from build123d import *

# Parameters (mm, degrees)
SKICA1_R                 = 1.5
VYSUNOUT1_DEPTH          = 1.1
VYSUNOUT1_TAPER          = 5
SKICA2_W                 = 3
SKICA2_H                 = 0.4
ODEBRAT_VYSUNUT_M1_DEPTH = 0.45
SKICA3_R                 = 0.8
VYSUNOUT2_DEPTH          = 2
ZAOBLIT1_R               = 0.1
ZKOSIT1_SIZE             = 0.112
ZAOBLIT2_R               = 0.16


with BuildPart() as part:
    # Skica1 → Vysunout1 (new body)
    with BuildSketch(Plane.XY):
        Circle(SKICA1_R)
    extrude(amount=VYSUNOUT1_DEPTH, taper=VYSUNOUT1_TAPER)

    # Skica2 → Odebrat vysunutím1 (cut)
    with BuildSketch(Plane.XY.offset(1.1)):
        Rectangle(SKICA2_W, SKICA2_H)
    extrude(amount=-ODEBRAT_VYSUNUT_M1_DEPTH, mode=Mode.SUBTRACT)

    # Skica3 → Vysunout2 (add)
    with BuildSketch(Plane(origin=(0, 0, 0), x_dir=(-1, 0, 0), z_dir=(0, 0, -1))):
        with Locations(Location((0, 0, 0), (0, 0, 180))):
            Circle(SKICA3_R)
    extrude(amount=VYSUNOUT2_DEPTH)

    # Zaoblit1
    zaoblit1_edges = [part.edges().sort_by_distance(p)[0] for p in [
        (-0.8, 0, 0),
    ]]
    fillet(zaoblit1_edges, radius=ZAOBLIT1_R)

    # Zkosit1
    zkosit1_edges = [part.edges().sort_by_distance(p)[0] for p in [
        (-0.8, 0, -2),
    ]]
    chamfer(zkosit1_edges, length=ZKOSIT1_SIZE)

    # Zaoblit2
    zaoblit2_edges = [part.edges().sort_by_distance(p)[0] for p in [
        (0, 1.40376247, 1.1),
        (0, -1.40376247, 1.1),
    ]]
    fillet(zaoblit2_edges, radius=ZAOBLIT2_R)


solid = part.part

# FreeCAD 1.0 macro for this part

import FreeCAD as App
import Part
import Sketcher
from FreeCAD import Vector


def edges_at(feature, points):
    """Names of the edges that pass closest to the given points."""
    edges = feature.Shape.Edges
    near = lambda p: min(range(len(edges)), key=lambda i: edges[i].distToShape(Part.Vertex(*p))[0])
    return sorted({f"Edge{near(p) + 1}" for p in points})

doc = App.newDocument("Part")
params = doc.addObject("Spreadsheet::Sheet", "Params")
for row, (alias, value) in enumerate([
    ("sketch1_diameter", "3 mm"),
    ("pad1_length", "1.1 mm"),
    ("pad1_taper", "-5 deg"),
    ("sketch2_width", "3 mm"),
    ("sketch2_height", "0.4 mm"),
    ("pocket1_length", "0.45 mm"),
    ("sketch3_diameter", "1.6 mm"),
    ("pad2_length", "2 mm"),
    ("fillet_radius", "0.1 mm"),
    ("chamfer_size", "0.112 mm"),
    ("fillet2_radius", "0.16 mm"),
], start=1):
    params.set(f"A{row}", alias)
    params.set(f"B{row}", "=" + value)
    params.setAlias(f"B{row}", alias)

body = doc.addObject("PartDesign::Body", "Body")

sketch1 = body.newObject("Sketcher::SketchObject", "Sketch")
sketch1.AttachmentSupport = (doc.getObject("XY_Plane"), [""])
sketch1.MapMode = "FlatFace"
sketch1.addGeometry(Part.Circle(Vector(0, 0, 0), Vector(0, 0, 1), 1.5), False)
sketch1.addConstraint([
    Sketcher.Constraint("Coincident", 0, 3, -1, 1),
    Sketcher.Constraint("Diameter", 0, 3.0),
])
sketch1.setExpression("Constraints[1]", "Params.sketch1_diameter")
pad1 = body.newObject("PartDesign::Pad", "Pad")
pad1.Profile = sketch1
pad1.setExpression("Length", "Params.pad1_length")
pad1.setExpression("TaperAngle", "Params.pad1_taper")

sketch2 = body.newObject("Sketcher::SketchObject", "Sketch001")
sketch2.AttachmentSupport = (doc.getObject("XY_Plane"), [""])
sketch2.MapMode = "FlatFace"
sketch2.AttachmentOffset = App.Placement(Vector(0, 0, 1.1), App.Rotation())
sketch2.addGeometry([
    Part.LineSegment(Vector(-1.5, 0.2, 0), Vector(-1.5, -0.2, 0)),
    Part.LineSegment(Vector(-1.5, -0.2, 0), Vector(1.5, -0.2, 0)),
    Part.LineSegment(Vector(1.5, -0.2, 0), Vector(1.5, 0.2, 0)),
    Part.LineSegment(Vector(1.5, 0.2, 0), Vector(-1.5, 0.2, 0)),
], False)
sketch2.addConstraint([
    Sketcher.Constraint("Coincident", 0, 2, 1, 1),
    Sketcher.Constraint("Coincident", 1, 2, 2, 1),
    Sketcher.Constraint("Coincident", 2, 2, 3, 1),
    Sketcher.Constraint("Coincident", 3, 2, 0, 1),
    Sketcher.Constraint("Vertical", 0),
    Sketcher.Constraint("Horizontal", 1),
    Sketcher.Constraint("Vertical", 2),
    Sketcher.Constraint("Horizontal", 3),
    Sketcher.Constraint("Symmetric", 0, 2, 2, 2, -1, 1),
    Sketcher.Constraint("DistanceX", 1, 1, 1, 2, 3.0),
    Sketcher.Constraint("DistanceY", 0, 2, 0, 1, 0.4),
])
sketch2.setExpression("Constraints[9]", "Params.sketch2_width")
sketch2.setExpression("Constraints[10]", "Params.sketch2_height")
pocket1 = body.newObject("PartDesign::Pocket", "Pocket")
pocket1.Profile = sketch2
pocket1.setExpression("Length", "Params.pocket1_length")

sketch3 = body.newObject("Sketcher::SketchObject", "Sketch002")
sketch3.AttachmentSupport = (doc.getObject("XY_Plane"), [""])
sketch3.MapMode = "FlatFace"
sketch3.addGeometry(Part.Circle(Vector(0, 0, 0), Vector(0, 0, 1), 0.8), False)
sketch3.addConstraint([
    Sketcher.Constraint("Coincident", 0, 3, -1, 1),
    Sketcher.Constraint("Diameter", 0, 1.6),
])
sketch3.setExpression("Constraints[1]", "Params.sketch3_diameter")
pad2 = body.newObject("PartDesign::Pad", "Pad001")
pad2.Profile = sketch3
pad2.setExpression("Length", "Params.pad2_length")
pad2.Reversed = True
doc.recompute()

fillet = body.newObject("PartDesign::Fillet", "Fillet")
fillet.Base = (pad2, edges_at(pad2, [(-0.8, 0, 0)]))
fillet.setExpression("Radius", "Params.fillet_radius")
doc.recompute()

chamfer = body.newObject("PartDesign::Chamfer", "Chamfer")
chamfer.Base = (fillet, edges_at(fillet, [(-0.8, 0, -2)]))
chamfer.setExpression("Size", "Params.chamfer_size")
doc.recompute()

fillet2 = body.newObject("PartDesign::Fillet", "Fillet001")
fillet2.Base = (chamfer, edges_at(chamfer, [(0, 1.404, 1.1), (0, -1.404, 1.1)]))
fillet2.setExpression("Radius", "Params.fillet2_radius")

doc.recompute()
